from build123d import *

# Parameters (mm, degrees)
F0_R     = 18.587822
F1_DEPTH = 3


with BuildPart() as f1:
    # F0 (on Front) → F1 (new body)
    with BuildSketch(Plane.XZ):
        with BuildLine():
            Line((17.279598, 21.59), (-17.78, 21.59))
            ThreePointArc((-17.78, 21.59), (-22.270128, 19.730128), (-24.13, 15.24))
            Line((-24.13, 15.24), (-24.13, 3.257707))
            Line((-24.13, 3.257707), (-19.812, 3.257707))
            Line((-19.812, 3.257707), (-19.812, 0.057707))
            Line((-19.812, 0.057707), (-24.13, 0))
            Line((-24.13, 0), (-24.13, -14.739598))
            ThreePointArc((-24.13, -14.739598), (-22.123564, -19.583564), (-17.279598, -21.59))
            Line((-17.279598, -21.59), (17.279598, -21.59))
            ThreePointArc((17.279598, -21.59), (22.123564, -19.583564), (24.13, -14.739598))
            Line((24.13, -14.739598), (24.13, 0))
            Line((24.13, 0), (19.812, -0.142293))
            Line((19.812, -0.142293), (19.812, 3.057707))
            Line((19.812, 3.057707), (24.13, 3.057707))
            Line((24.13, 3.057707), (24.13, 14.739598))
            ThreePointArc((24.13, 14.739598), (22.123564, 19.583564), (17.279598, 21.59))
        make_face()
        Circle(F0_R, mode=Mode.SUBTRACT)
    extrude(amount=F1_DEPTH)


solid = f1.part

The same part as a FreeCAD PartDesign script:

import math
import FreeCAD as App
import Part
import Sketcher

V = App.Vector
Q = App.Units.Quantity

doc = App.newDocument("Part")
params = doc.addObject("Spreadsheet::Sheet", "Params")
for row, (alias, value) in enumerate([
    ("sketch1_radius", "6.35 mm"),
    ("sketch1_height", "3.2 mm"),
    ("pad1_length", "3 mm"),
], start=1):
    params.set(f"A{row}", alias)
    params.set(f"B{row}", "=" + value)
    params.setAlias(f"B{row}", alias)

body = doc.addObject("PartDesign::Body", "Body")

# Sketch on XZ plane
sketch1 = body.newObject("Sketcher::SketchObject", "Sketch")
sketch1.AttachmentSupport = (doc.getObject("XZ_Plane"), [""])
sketch1.MapMode = "FlatFace"
sketch1.addGeometry([
    Part.LineSegment(V(17.279598, 21.59, 0), V(-17.78, 21.59, 0)),  # 0
    Part.ArcOfCircle(Part.Circle(V(-17.78, 15.24, 0), V(0, 0, 1), 6.35), math.radians(90.000002), math.radians(179.999998)),  # 1
    Part.LineSegment(V(-24.13, 15.24, 0), V(-24.13, 3.257707, 0)),  # 2
    Part.LineSegment(V(-24.13, 3.257707, 0), V(-19.812, 3.257707, 0)),  # 3
    Part.LineSegment(V(-19.812, 3.257707, 0), V(-19.812, 0.057707, 0)),  # 4
    Part.LineSegment(V(-19.812, 0.057707, 0), V(-24.13, 0, 0)),  # 5
    Part.LineSegment(V(-24.13, 0, 0), V(-24.13, -14.739598, 0)),  # 6
    Part.ArcOfCircle(Part.Circle(V(-17.279599, -14.739599, 0), V(0, 0, 1), 6.850401), math.radians(179.999992), math.radians(270.000008)),  # 7
    Part.LineSegment(V(-17.279598, -21.59, 0), V(17.279598, -21.59, 0)),  # 8
    Part.ArcOfCircle(Part.Circle(V(17.279599, -14.739599, 0), V(0, 0, 1), 6.850401), math.radians(-90.000008), math.radians(0.000008)),  # 9
    Part.LineSegment(V(24.13, -14.739598, 0), V(24.13, 0, 0)),  # 10
    Part.LineSegment(V(24.13, 0, 0), V(19.812, -0.142293, 0)),  # 11
    Part.LineSegment(V(19.812, -0.142293, 0), V(19.812, 3.057707, 0)),  # 12
    Part.LineSegment(V(19.812, 3.057707, 0), V(24.13, 3.057707, 0)),  # 13
    Part.LineSegment(V(24.13, 3.057707, 0), V(24.13, 14.739598, 0)),  # 14
    Part.ArcOfCircle(Part.Circle(V(17.279599, 14.739599, 0), V(0, 0, 1), 6.850401), math.radians(-0.000008), math.radians(90.000008)),  # 15
    Part.Circle(V(0, 0, 0), V(0, 0, 1), 18.587822),  # 16
], False)
sketch1.addConstraint([
    Sketcher.Constraint("Tangent", 0, 2, 1, 1),
    Sketcher.Constraint("Tangent", 1, 2, 2, 1),
    Sketcher.Constraint("Coincident", 2, 2, 3, 1),
    Sketcher.Constraint("Coincident", 3, 2, 4, 1),
    Sketcher.Constraint("Coincident", 4, 2, 5, 1),
    Sketcher.Constraint("Coincident", 5, 2, 6, 1),
    Sketcher.Constraint("Tangent", 6, 2, 7, 1),
    Sketcher.Constraint("Tangent", 7, 2, 8, 1),
    Sketcher.Constraint("Tangent", 8, 2, 9, 1),
    Sketcher.Constraint("Tangent", 9, 2, 10, 1),
    Sketcher.Constraint("Coincident", 10, 2, 11, 1),
    Sketcher.Constraint("Coincident", 11, 2, 12, 1),
    Sketcher.Constraint("Coincident", 12, 2, 13, 1),
    Sketcher.Constraint("Coincident", 13, 2, 14, 1),
    Sketcher.Constraint("Tangent", 14, 2, 15, 1),
    Sketcher.Constraint("Tangent", 15, 2, 0, 1),
    Sketcher.Constraint("Horizontal", 0),
    Sketcher.Constraint("Vertical", 2),
    Sketcher.Constraint("Horizontal", 3),
    Sketcher.Constraint("Vertical", 4),
    Sketcher.Constraint("Vertical", 6),
    Sketcher.Constraint("Horizontal", 8),
    Sketcher.Constraint("Vertical", 10),
    Sketcher.Constraint("Vertical", 12),
    Sketcher.Constraint("Horizontal", 13),
    Sketcher.Constraint("Vertical", 14),
    Sketcher.Constraint("Coincident", 16, 3, -1, 1),
    Sketcher.Constraint("Equal", 7, 9),
    Sketcher.Constraint("Equal", 9, 15),
    Sketcher.Constraint("Symmetric", 7, 3, 15, 3, -1, 1),
    Sketcher.Constraint("Symmetric", 5, 2, 10, 2, -1, 1),
    Sketcher.Constraint("PointOnObject", 5, 2, -1),
    Sketcher.Constraint("Vertical", 2, 2, 5, 2),
    Sketcher.Constraint("Equal", 3, 13),
    Sketcher.Constraint("Equal", 4, 12),
    Sketcher.Constraint("Radius", 1, Q("6.35 mm")),
    Sketcher.Constraint("DistanceY", 4, 2, 4, 1, Q("3.2 mm")),
    Sketcher.Constraint("Radius", 7, Q("6.850401 mm")),
    Sketcher.Constraint("DistanceX", 3, 1, 3, 2, Q("4.318 mm")),
    Sketcher.Constraint("DistanceX", 1, 3, -1, 1, Q("17.78 mm")),
    Sketcher.Constraint("DistanceY", -1, 1, 1, 3, Q("15.24 mm")),
    Sketcher.Constraint("Diameter", 16, Q("37.175644 mm")),
    Sketcher.Constraint("DistanceY", 14, 1, 14, 2, Q("11.681891 mm")),
    Sketcher.Constraint("DistanceY", 2, 2, 2, 1, Q("11.982293 mm")),
])
sketch1.setExpression("Constraints[35]", "Params.sketch1_radius")
sketch1.setExpression("Constraints[36]", "Params.sketch1_height")
pad1 = body.newObject("PartDesign::Pad", "Pad")
pad1.Profile = sketch1
pad1.setExpression("Length", "Params.pad1_length")

doc.recompute()
